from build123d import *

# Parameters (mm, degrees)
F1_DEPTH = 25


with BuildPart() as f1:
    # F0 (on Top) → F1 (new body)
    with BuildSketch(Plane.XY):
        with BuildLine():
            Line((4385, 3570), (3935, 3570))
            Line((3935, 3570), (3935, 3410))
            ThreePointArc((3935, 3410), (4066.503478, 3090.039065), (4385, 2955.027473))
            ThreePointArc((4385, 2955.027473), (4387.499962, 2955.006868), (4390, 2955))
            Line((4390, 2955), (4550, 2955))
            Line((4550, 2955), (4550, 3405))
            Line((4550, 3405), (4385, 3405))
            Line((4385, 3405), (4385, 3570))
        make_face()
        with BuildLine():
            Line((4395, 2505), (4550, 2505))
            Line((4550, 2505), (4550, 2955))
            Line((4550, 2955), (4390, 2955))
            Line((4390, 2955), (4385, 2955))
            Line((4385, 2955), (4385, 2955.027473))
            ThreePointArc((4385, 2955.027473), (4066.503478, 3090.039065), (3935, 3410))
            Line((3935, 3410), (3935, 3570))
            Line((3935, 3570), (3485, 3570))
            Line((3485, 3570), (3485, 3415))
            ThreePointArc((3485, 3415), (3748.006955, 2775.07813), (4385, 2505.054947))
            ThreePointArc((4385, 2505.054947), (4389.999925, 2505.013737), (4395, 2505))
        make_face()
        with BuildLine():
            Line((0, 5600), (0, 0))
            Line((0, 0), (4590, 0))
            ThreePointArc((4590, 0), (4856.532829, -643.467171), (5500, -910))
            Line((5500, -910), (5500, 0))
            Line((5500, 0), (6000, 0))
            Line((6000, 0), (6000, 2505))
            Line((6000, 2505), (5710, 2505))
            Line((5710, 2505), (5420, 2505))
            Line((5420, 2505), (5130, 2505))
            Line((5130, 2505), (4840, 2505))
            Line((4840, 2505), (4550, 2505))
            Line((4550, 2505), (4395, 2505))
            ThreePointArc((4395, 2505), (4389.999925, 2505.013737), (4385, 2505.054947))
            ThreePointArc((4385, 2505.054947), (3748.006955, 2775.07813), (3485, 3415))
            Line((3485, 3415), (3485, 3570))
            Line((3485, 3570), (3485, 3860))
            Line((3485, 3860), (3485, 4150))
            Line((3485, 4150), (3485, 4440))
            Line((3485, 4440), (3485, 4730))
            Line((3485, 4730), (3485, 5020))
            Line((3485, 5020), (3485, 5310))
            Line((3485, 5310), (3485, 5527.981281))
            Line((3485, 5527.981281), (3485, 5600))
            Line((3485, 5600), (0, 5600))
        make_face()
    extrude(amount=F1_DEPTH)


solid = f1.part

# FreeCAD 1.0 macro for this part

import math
import FreeCAD as App
import Part
import Sketcher

doc = App.newDocument("Part")
body = doc.addObject("PartDesign::Body", "Body")

# Sketch on XY plane
sketch1 = body.newObject("Sketcher::SketchObject", "Sketch")
sketch1.AttachmentSupport = (doc.getObject("XY_Plane"), [""])
sketch1.MapMode = "FlatFace"
sketch1.addGeometry(Part.LineSegment(App.Vector(4385, 3570, 0), App.Vector(3485, 3570, 0)), False)
sketch1.addGeometry(Part.LineSegment(App.Vector(3485, 3570, 0), App.Vector(3485, 5600, 0)), False)
sketch1.addGeometry(Part.LineSegment(App.Vector(3485, 5600, 0), App.Vector(0, 5600, 0)), False)
sketch1.addGeometry(Part.LineSegment(App.Vector(0, 5600, 0), App.Vector(0, 0, 0)), False)
sketch1.addGeometry(Part.LineSegment(App.Vector(0, 0, 0), App.Vector(4590, 0, 0)), False)
sketch1.addGeometry(Part.ArcOfCircle(Part.Circle(App.Vector(5500, 0, 0), App.Vector(0, 0, 1), 910), math.radians(180), math.radians(270)), False)
sketch1.addGeometry(Part.LineSegment(App.Vector(5500, -910, 0), App.Vector(5500, 0, 0)), False)
sketch1.addGeometry(Part.LineSegment(App.Vector(5500, 0, 0), App.Vector(6000, 0, 0)), False)
sketch1.addGeometry(Part.LineSegment(App.Vector(6000, 0, 0), App.Vector(6000, 2505, 0)), False)
sketch1.addGeometry(Part.LineSegment(App.Vector(6000, 2505, 0), App.Vector(4550, 2505, 0)), False)
sketch1.addGeometry(Part.LineSegment(App.Vector(4550, 2505, 0), App.Vector(4550, 3405, 0)), False)
sketch1.addGeometry(Part.LineSegment(App.Vector(4550, 3405, 0), App.Vector(4385, 3405, 0)), False)
sketch1.addGeometry(Part.LineSegment(App.Vector(4385, 3405, 0), App.Vector(4385, 3570, 0)), False)
sketch1.addGeometry(Part.ArcOfCircle(Part.Circle(App.Vector(4389.99989, 3409.985821, 0), App.Vector(0, 0, 1), 454.985821), math.radians(-90.629642), math.radians(-89.999986)), False)
sketch1.addGeometry(Part.LineSegment(App.Vector(4390, 2955, 0), App.Vector(4385, 2955, 0)), False)
sketch1.addGeometry(Part.LineSegment(App.Vector(4385, 2955, 0), App.Vector(4385, 2955.027473, 0)), False)
sketch1.addConstraint(Sketcher.Constraint("Coincident", 0, 2, 1, 1))
sketch1.addConstraint(Sketcher.Constraint("Coincident", 1, 2, 2, 1))
sketch1.addConstraint(Sketcher.Constraint("Coincident", 2, 2, 3, 1))
sketch1.addConstraint(Sketcher.Constraint("Coincident", 3, 2, 4, 1))
sketch1.addConstraint(Sketcher.Constraint("Coincident", 4, 2, 5, 1))
sketch1.addConstraint(Sketcher.Constraint("Coincident", 5, 2, 6, 1))
sketch1.addConstraint(Sketcher.Constraint("Coincident", 6, 2, 7, 1))
sketch1.addConstraint(Sketcher.Constraint("Coincident", 7, 2, 8, 1))
sketch1.addConstraint(Sketcher.Constraint("Coincident", 8, 2, 9, 1))
sketch1.addConstraint(Sketcher.Constraint("Coincident", 9, 2, 10, 1))
sketch1.addConstraint(Sketcher.Constraint("Coincident", 10, 2, 11, 1))
sketch1.addConstraint(Sketcher.Constraint("Coincident", 11, 2, 12, 1))
sketch1.addConstraint(Sketcher.Constraint("Coincident", 12, 2, 0, 1))
sketch1.addConstraint(Sketcher.Constraint("Coincident", 13, 2, 14, 1))
sketch1.addConstraint(Sketcher.Constraint("Coincident", 14, 2, 15, 1))
sketch1.addConstraint(Sketcher.Constraint("Coincident", 15, 2, 13, 1))
sketch1.addConstraint(Sketcher.Constraint("Horizontal", 0))
sketch1.addConstraint(Sketcher.Constraint("Vertical", 1))
sketch1.addConstraint(Sketcher.Constraint("Horizontal", 2))
sketch1.addConstraint(Sketcher.Constraint("Vertical", 3))
sketch1.addConstraint(Sketcher.Constraint("Horizontal", 4))
sketch1.addConstraint(Sketcher.Constraint("Vertical", 6))
sketch1.addConstraint(Sketcher.Constraint("Horizontal", 7))
sketch1.addConstraint(Sketcher.Constraint("Vertical", 8))
sketch1.addConstraint(Sketcher.Constraint("Horizontal", 9))
sketch1.addConstraint(Sketcher.Constraint("Vertical", 10))
sketch1.addConstraint(Sketcher.Constraint("Horizontal", 11))
sketch1.addConstraint(Sketcher.Constraint("Vertical", 12))
sketch1.addConstraint(Sketcher.Constraint("Horizontal", 14))
sketch1.addConstraint(Sketcher.Constraint("Vertical", 15))
sketch1.addConstraint(Sketcher.Constraint("Coincident", 3, 2, -1, 1))
sketch1.addConstraint(Sketcher.Constraint("Coincident", 6, 2, 5, 3))
sketch1.addConstraint(Sketcher.Constraint("PointOnObject", 5, 3, -1))
sketch1.addConstraint(Sketcher.Constraint("Radius", 5, 910.0))
sketch1.addConstraint(Sketcher.Constraint("DistanceX", 0, 2, 0, 1, 900.0))
sketch1.addConstraint(Sketcher.Constraint("DistanceX", 2, 2, 2, 1, 3485.0))
sketch1.addConstraint(Sketcher.Constraint("DistanceX", 4, 1, 4, 2, 4590.0))
sketch1.addConstraint(Sketcher.Constraint("DistanceX", 7, 1, 7, 2, 500.0))
sketch1.addConstraint(Sketcher.Constraint("DistanceX", 9, 2, 9, 1, 1450.0))
sketch1.addConstraint(Sketcher.Constraint("DistanceX", 14, 2, 14, 1, 5.0))
sketch1.addConstraint(Sketcher.Constraint("DistanceY", 1, 1, 1, 2, 2030.0))
sketch1.addConstraint(Sketcher.Constraint("DistanceY", 3, 2, 3, 1, 5600.0))
sketch1.addConstraint(Sketcher.Constraint("DistanceY", 8, 1, 8, 2, 2505.0))
sketch1.addConstraint(Sketcher.Constraint("DistanceY", 10, 1, 10, 2, 900.0))
sketch1.addConstraint(Sketcher.Constraint("DistanceY", -1, 1, 13, 2, 2955.0))
sketch1.addConstraint(Sketcher.Constraint("DistanceX", -1, 1, 14, 2, 4385.0))
sketch1.addConstraint(Sketcher.Constraint("Radius", 13, 454.985821))
sketch1.addConstraint(Sketcher.Constraint("DistanceY", 15, 1, 15, 2, 0.027473))
pad1 = body.newObject("PartDesign::Pad", "Pad")
pad1.Profile = sketch1
pad1.Length = 25

doc.recompute()
